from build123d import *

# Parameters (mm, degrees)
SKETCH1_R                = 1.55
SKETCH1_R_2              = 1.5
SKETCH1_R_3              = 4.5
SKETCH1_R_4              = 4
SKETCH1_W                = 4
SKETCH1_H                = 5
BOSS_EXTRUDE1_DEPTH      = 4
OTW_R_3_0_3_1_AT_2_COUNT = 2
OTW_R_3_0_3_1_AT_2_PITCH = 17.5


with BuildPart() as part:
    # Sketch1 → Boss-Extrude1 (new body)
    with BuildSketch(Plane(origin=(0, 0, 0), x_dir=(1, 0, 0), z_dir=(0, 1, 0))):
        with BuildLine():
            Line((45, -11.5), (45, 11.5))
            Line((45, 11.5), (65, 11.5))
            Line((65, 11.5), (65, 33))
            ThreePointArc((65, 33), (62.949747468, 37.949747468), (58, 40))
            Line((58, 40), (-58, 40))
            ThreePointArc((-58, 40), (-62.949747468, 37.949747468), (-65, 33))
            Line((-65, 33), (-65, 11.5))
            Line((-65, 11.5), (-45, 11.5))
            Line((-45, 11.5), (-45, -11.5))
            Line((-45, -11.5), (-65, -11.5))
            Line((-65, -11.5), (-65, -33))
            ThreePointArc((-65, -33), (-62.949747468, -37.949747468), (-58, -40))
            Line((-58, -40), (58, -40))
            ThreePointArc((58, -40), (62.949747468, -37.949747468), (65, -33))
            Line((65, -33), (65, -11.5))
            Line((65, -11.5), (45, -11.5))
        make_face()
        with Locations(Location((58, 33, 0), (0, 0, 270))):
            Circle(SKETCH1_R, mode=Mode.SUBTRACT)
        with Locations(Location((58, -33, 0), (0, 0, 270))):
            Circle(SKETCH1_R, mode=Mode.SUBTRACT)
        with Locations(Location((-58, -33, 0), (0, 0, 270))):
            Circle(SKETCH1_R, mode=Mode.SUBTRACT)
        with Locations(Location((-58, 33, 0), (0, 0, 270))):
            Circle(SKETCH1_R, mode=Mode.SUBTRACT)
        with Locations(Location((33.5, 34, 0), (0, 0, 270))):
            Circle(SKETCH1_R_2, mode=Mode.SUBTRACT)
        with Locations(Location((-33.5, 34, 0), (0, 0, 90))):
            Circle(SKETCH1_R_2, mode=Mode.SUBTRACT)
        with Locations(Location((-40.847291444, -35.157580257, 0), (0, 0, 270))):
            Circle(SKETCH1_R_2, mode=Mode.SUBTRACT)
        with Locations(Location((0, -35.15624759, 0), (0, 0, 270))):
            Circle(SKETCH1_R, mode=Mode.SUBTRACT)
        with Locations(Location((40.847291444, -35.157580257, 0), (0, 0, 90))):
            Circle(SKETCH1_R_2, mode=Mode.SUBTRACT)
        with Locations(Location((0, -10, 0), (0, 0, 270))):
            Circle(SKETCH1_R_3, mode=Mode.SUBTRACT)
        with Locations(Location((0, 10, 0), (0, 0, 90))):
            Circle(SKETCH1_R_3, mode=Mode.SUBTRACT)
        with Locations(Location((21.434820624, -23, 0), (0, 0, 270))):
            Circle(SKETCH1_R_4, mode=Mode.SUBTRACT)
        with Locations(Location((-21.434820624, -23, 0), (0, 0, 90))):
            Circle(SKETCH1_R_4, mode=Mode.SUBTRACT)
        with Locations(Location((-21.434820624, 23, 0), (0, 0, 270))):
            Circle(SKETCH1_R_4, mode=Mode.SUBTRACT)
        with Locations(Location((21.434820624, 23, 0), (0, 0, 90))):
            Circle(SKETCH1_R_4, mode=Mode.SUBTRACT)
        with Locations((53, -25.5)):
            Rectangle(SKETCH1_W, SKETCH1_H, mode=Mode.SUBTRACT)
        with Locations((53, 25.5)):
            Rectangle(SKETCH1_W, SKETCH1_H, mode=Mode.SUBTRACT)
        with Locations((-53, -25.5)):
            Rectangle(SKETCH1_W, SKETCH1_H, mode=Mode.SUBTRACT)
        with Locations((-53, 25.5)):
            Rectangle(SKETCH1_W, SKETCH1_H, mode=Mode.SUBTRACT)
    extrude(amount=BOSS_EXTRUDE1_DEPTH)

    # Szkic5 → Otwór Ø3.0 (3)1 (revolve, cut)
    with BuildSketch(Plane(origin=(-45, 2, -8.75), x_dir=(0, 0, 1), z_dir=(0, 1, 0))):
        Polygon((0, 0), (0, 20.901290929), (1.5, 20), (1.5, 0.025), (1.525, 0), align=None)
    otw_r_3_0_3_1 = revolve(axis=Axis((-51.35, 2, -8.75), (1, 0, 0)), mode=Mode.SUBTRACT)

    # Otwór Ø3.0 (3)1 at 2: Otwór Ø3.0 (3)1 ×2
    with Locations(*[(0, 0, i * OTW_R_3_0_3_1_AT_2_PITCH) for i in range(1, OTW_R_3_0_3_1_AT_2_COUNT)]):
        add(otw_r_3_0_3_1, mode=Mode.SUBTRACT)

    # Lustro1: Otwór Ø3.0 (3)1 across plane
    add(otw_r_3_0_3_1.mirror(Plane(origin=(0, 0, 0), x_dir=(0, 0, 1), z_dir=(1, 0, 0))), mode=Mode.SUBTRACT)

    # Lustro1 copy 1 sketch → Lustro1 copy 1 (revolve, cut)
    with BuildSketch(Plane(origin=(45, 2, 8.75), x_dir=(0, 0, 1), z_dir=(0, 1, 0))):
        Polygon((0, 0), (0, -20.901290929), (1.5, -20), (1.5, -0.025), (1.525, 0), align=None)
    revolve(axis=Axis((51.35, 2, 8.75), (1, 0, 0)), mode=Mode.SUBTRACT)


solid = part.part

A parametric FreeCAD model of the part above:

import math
import FreeCAD as App
import Part
import Sketcher
from FreeCAD import Vector
Q = App.Units.Quantity


def add_polygon(sketch, points):
    """Adds a closed chain of lines whose ends are joined by coincident constraints."""
    first, n = sketch.GeometryCount, len(points)
    for a, b in zip(points, points[1:] + points[:1]):
        sketch.addGeometry(Part.LineSegment(App.Vector(*a, 0), App.Vector(*b, 0)), False)
    for i in range(n):
        sketch.addConstraint(Sketcher.Constraint("Coincident", first + i, 2, first + (i + 1) % n, 1))

doc = App.newDocument("Part")
body = doc.addObject("PartDesign::Body", "Body")

# Sketch on XZ plane
sketch1 = doc.addObject("Sketcher::SketchObject", "Sketch")
body.addObject(sketch1)
sketch1.AttachmentSupport = (doc.XZ_Plane, [""])
sketch1.MapMode = "FlatFace"
sketch1.addGeometry(Part.LineSegment(Vector(45, 11.5, 0), Vector(45, -11.5, 0)), False)  # 0
sketch1.addGeometry(Part.LineSegment(Vector(45, -11.5, 0), Vector(65, -11.5, 0)), False)  # 1
sketch1.addGeometry(Part.LineSegment(Vector(65, -11.5, 0), Vector(65, -33, 0)), False)  # 2
sketch1.addGeometry(Part.ArcOfCircle(Part.Circle(Vector(58, -33, 0), Vector(0, 0, 1), 7), math.radians(-90), math.radians(0)), False)  # 3
sketch1.addGeometry(Part.LineSegment(Vector(58, -40, 0), Vector(-58, -40, 0)), False)  # 4
sketch1.addGeometry(Part.ArcOfCircle(Part.Circle(Vector(-58, -33, 0), Vector(0, 0, 1), 7), math.radians(-180), math.radians(-90)), False)  # 5
sketch1.addGeometry(Part.LineSegment(Vector(-65, -33, 0), Vector(-65, -11.5, 0)), False)  # 6
sketch1.addGeometry(Part.LineSegment(Vector(-65, -11.5, 0), Vector(-45, -11.5, 0)), False)  # 7
sketch1.addGeometry(Part.LineSegment(Vector(-45, -11.5, 0), Vector(-45, 11.5, 0)), False)  # 8
sketch1.addGeometry(Part.LineSegment(Vector(-45, 11.5, 0), Vector(-65, 11.5, 0)), False)  # 9
sketch1.addGeometry(Part.LineSegment(Vector(-65, 11.5, 0), Vector(-65, 33, 0)), False)  # 10
sketch1.addGeometry(Part.ArcOfCircle(Part.Circle(Vector(-58, 33, 0), Vector(0, 0, 1), 7), math.radians(90), math.radians(180)), False)  # 11
sketch1.addGeometry(Part.LineSegment(Vector(-58, 40, 0), Vector(58, 40, 0)), False)  # 12
sketch1.addGeometry(Part.ArcOfCircle(Part.Circle(Vector(58, 33, 0), Vector(0, 0, 1), 7), math.radians(0), math.radians(90)), False)  # 13
sketch1.addGeometry(Part.LineSegment(Vector(65, 33, 0), Vector(65, 11.5, 0)), False)  # 14
sketch1.addGeometry(Part.LineSegment(Vector(65, 11.5, 0), Vector(45, 11.5, 0)), False)  # 15
sketch1.addGeometry(Part.Circle(Vector(-58, 33, 0), Vector(0, 0, 1), 1.6), False)  # 16
sketch1.addGeometry(Part.Circle(Vector(-40.8, 35.2, 0), Vector(0, 0, 1), 1.5), False)  # 17
add_polygon(sketch1, [(-51, 28), (-55, 28), (-55, 23), (-51, 23)])  # lines 18-21
sketch1.addGeometry(Part.Circle(Vector(0, 35.2, 0), Vector(0, 0, 1), 1.6), False)  # 22
sketch1.addGeometry(Part.Circle(Vector(-21.4, 23, 0), Vector(0, 0, 1), 4), False)  # 23
sketch1.addGeometry(Part.Circle(Vector(0, 10, 0), Vector(0, 0, 1), 4.5), False)  # 24
sketch1.addGeometry(Part.Circle(Vector(21.4, 23, 0), Vector(0, 0, 1), 4), False)  # 25
sketch1.addGeometry(Part.Circle(Vector(40.8, 35.2, 0), Vector(0, 0, 1), 1.5), False)  # 26
sketch1.addGeometry(Part.Circle(Vector(58, 33, 0), Vector(0, 0, 1), 1.6), False)  # 27
add_polygon(sketch1, [(55, 28), (51, 28), (51, 23), (55, 23)])  # lines 28-31
sketch1.addGeometry(Part.Circle(Vector(0, -10, 0), Vector(0, 0, 1), 4.5), False)  # 32
add_polygon(sketch1, [(-51, -23), (-55, -23), (-55, -28), (-51, -28)])  # lines 33-36
sketch1.addGeometry(Part.Circle(Vector(-58, -33, 0), Vector(0, 0, 1), 1.6), False)  # 37
sketch1.addGeometry(Part.Circle(Vector(-33.5, -34, 0), Vector(0, 0, 1), 1.5), False)  # 38
sketch1.addGeometry(Part.Circle(Vector(-21.4, -23, 0), Vector(0, 0, 1), 4), False)  # 39
sketch1.addGeometry(Part.Circle(Vector(21.4, -23, 0), Vector(0, 0, 1), 4), False)  # 40
add_polygon(sketch1, [(55, -23), (51, -23), (51, -28), (55, -28)])  # lines 41-44
sketch1.addGeometry(Part.Circle(Vector(33.5, -34, 0), Vector(0, 0, 1), 1.5), False)  # 45
sketch1.addGeometry(Part.Circle(Vector(58, -33, 0), Vector(0, 0, 1), 1.6), False)  # 46
sketch1.addConstraint([
    Sketcher.Constraint("Coincident", 0, 2, 1, 1),
    Sketcher.Constraint("Coincident", 1, 2, 2, 1),
    Sketcher.Constraint("Tangent", 2, 2, 3, 2),
    Sketcher.Constraint("Tangent", 3, 1, 4, 1),
    Sketcher.Constraint("Tangent", 4, 2, 5, 2),
    Sketcher.Constraint("Tangent", 5, 1, 6, 1),
    Sketcher.Constraint("Coincident", 6, 2, 7, 1),
    Sketcher.Constraint("Coincident", 7, 2, 8, 1),
    Sketcher.Constraint("Coincident", 8, 2, 9, 1),
    Sketcher.Constraint("Coincident", 9, 2, 10, 1),
    Sketcher.Constraint("Tangent", 10, 2, 11, 2),
    Sketcher.Constraint("Tangent", 11, 1, 12, 1),
    Sketcher.Constraint("Tangent", 12, 2, 13, 2),
    Sketcher.Constraint("Tangent", 13, 1, 14, 1),
    Sketcher.Constraint("Coincident", 14, 2, 15, 1),
    Sketcher.Constraint("Coincident", 15, 2, 0, 1),
    Sketcher.Constraint("Vertical", 0),
    Sketcher.Constraint("Horizontal", 1),
    Sketcher.Constraint("Vertical", 2),
    Sketcher.Constraint("Horizontal", 4),
    Sketcher.Constraint("Vertical", 6),
    Sketcher.Constraint("Horizontal", 7),
    Sketcher.Constraint("Vertical", 8),
    Sketcher.Constraint("Horizontal", 9),
    Sketcher.Constraint("Vertical", 10),
    Sketcher.Constraint("Horizontal", 12),
    Sketcher.Constraint("Vertical", 14),
    Sketcher.Constraint("Horizontal", 15),
    Sketcher.Constraint("Horizontal", 18),
    Sketcher.Constraint("Vertical", 19),
    Sketcher.Constraint("Horizontal", 20),
    Sketcher.Constraint("Vertical", 21),
    Sketcher.Constraint("Horizontal", 28),
    Sketcher.Constraint("Vertical", 29),
    Sketcher.Constraint("Horizontal", 30),
    Sketcher.Constraint("Vertical", 31),
    Sketcher.Constraint("Horizontal", 33),
    Sketcher.Constraint("Vertical", 34),
    Sketcher.Constraint("Horizontal", 35),
    Sketcher.Constraint("Vertical", 36),
    Sketcher.Constraint("Horizontal", 41),
    Sketcher.Constraint("Vertical", 42),
    Sketcher.Constraint("Horizontal", 43),
    Sketcher.Constraint("Vertical", 44),
    Sketcher.Constraint("Coincident", 16, 3, 11, 3),
    Sketcher.Constraint("Coincident", 27, 3, 13, 3),
    Sketcher.Constraint("Coincident", 37, 3, 5, 3),
    Sketcher.Constraint("Coincident", 46, 3, 3, 3),
    Sketcher.Constraint("Equal", 3, 5),
    Sketcher.Constraint("Equal", 5, 11),
    Sketcher.Constraint("Equal", 11, 13),
    Sketcher.Constraint("Equal", 16, 22),
    Sketcher.Constraint("Equal", 23, 25),
    Sketcher.Constraint("Equal", 17, 26),
    Sketcher.Constraint("Equal", 22, 27),
    Sketcher.Constraint("Equal", 24, 32),
    Sketcher.Constraint("Equal", 27, 37),
    Sketcher.Constraint("Equal", 26, 38),
    Sketcher.Constraint("Equal", 25, 39),
    Sketcher.Constraint("Equal", 39, 40),
    Sketcher.Constraint("Equal", 38, 45),
    Sketcher.Constraint("Equal", 37, 46),
    Sketcher.Constraint("Symmetric", 3, 3, 11, 3, -1, 1),
    Sketcher.Constraint("Symmetric", 24, 3, 32, 3, -1, 1),
    Sketcher.Constraint("Symmetric", 25, 3, 39, 3, -1, 1),
    Sketcher.Constraint("Symmetric", 23, 3, 40, 3, -1, 1),
    Sketcher.Constraint("Symmetric", 0, 2, 8, 2, -1, 1),
    Sketcher.Constraint("Symmetric", 6, 2, 14, 2, -1, 1),
    Sketcher.Constraint("Symmetric", 30, 2, 33, 2, -1, 1),
    Sketcher.Constraint("Symmetric", 28, 2, 35, 2, -1, 1),
    Sketcher.Constraint("Symmetric", 20, 2, 41, 2, -1, 1),
    Sketcher.Constraint("Symmetric", 18, 2, 43, 2, -1, 1),
    Sketcher.Constraint("Symmetric", 23, 3, 25, 3, -2),
    Sketcher.Constraint("Symmetric", 17, 3, 26, 3, -2),
    Sketcher.Constraint("Symmetric", 38, 3, 45, 3, -2),
    Sketcher.Constraint("Symmetric", 1, 2, 6, 2, -2),
    Sketcher.Constraint("Symmetric", 21, 2, 28, 2, -2),
    Sketcher.Constraint("Symmetric", 19, 2, 30, 2, -2),
    Sketcher.Constraint("PointOnObject", 22, 3, -2),
    Sketcher.Constraint("PointOnObject", 24, 3, -2),
    Sketcher.Constraint("Horizontal", 25, 3, 19, 2),
    Sketcher.Constraint("Diameter", 17, 3.0),
    Sketcher.Constraint("Diameter", 23, 8.0),
    Sketcher.Constraint("Diameter", 24, 9.0),
    Sketcher.Constraint("Radius", 3, 7.0),
    Sketcher.Constraint("Diameter", 16, 3.1),
    Sketcher.Constraint("DistanceX", 1, 1, 1, 2, 20.0),
    Sketcher.Constraint("DistanceX", 4, 2, 4, 1, 116.0),
    Sketcher.Constraint("DistanceX", 18, 2, 18, 1, 4.0),
    Sketcher.Constraint("DistanceY", 0, 2, 0, 1, 23.0),
    Sketcher.Constraint("DistanceY", 19, 2, 19, 1, 5.0),
    Sketcher.Constraint("DistanceY", 2, 2, 2, 1, 21.5),
    Sketcher.Constraint("DistanceY", -1, 1, 23, 3, 23.0),
    Sketcher.Constraint("DistanceY", -1, 1, 24, 3, 10.0),
    Sketcher.Constraint("DistanceY", 38, 3, -1, 1, 34.0),
    Sketcher.Constraint("DistanceX", 18, 2, -1, 1, 55.0),
    Sketcher.Constraint("DistanceX", 38, 3, -1, 1, 33.5),
    Sketcher.Constraint("DistanceX", 17, 3, -1, 1, 40.847291),
    Sketcher.Constraint("DistanceY", -1, 1, 17, 3, 35.15758),
    Sketcher.Constraint("DistanceX", 23, 3, -1, 1, 21.434821),
    Sketcher.Constraint("DistanceY", -1, 1, 22, 3, 35.156248),
])
pad1 = doc.addObject("PartDesign::Pad", "Pad")
body.addObject(pad1)
pad1.Profile = sketch1
pad1.Length = 4
pad1.Reversed = True

# Sketch on XZ plane
sketch2 = doc.addObject("Sketcher::SketchObject", "Sketch001")
body.addObject(sketch2)
sketch2.AttachmentSupport = (doc.XZ_Plane, [""])
sketch2.MapMode = "FlatFace"
sketch2.AttachmentOffset = App.Placement(Vector(0, 0, -2), App.Rotation())
add_polygon(sketch2, [(-24.099, -8.75), (-45, -8.75), (-45, -7.225), (-44.975, -7.25), (-25, -7.25)])  # lines 0-4
sketch2.addGeometry(Part.LineSegment(Vector(-45, -8.75, 0), Vector(-24.099, -8.75, 0)), True)  # axis
sketch2.addConstraint([
    Sketcher.Constraint("Horizontal", 0),
    Sketcher.Constraint("Vertical", 1),
    Sketcher.Constraint("Horizontal", 3),
    Sketcher.Constraint("Horizontal", 5),
    Sketcher.Constraint("Coincident", 5, 1, 0, 2),
    Sketcher.Constraint("Equal", 0, 5),
    Sketcher.Constraint("Angle", 2, Q("-45 deg")),
    Sketcher.Constraint("Angle", 4, Q("-59 deg")),
    Sketcher.Constraint("DistanceX", 0, 2, -1, 1, 45.0),
    Sketcher.Constraint("DistanceX", 3, 2, -1, 1, 25.0),
    Sketcher.Constraint("DistanceY", 0, 2, 2, 2, 1.5),
    Sketcher.Constraint("DistanceX", 3, 1, 3, 2, 19.975),
    Sketcher.Constraint("DistanceY", 0, 2, -1, 1, 8.75),
])
groove = doc.addObject("PartDesign::Groove", "Groove")
body.addObject(groove)
groove.Profile = sketch2
groove.ReferenceAxis = (sketch2, ["Axis0"])
groove.Angle = 360
doc.recompute()

linearpattern = doc.addObject("PartDesign::LinearPattern", "LinearPattern")
body.addObject(linearpattern)
linearpattern.Originals = [groove]
linearpattern.Direction = (doc.Z_Axis, [""])
linearpattern.Mode = "offset"
linearpattern.Offset = 17.5
linearpattern.Occurrences = 2
body.Tip = linearpattern
doc.recompute()

mirrored = doc.addObject("PartDesign::Mirrored", "Mirrored")
body.addObject(mirrored)
mirrored.Originals = [groove]
mirrored.MirrorPlane = (doc.YZ_Plane, [""])
body.Tip = mirrored

# Sketch on XZ plane
sketch3 = doc.addObject("Sketcher::SketchObject", "Sketch002")
body.addObject(sketch3)
sketch3.AttachmentSupport = (doc.XZ_Plane, [""])
sketch3.MapMode = "FlatFace"
sketch3.AttachmentOffset = App.Placement(Vector(0, 0, -2), App.Rotation())
add_polygon(sketch3, [(45, 8.75), (24.099, 8.75), (25, 10.25), (44.975, 10.25), (45, 10.275)])  # lines 0-4
sketch3.addGeometry(Part.LineSegment(Vector(24.099, 8.75, 0), Vector(45, 8.75, 0)), True)  # axis
sketch3.addConstraint([
    Sketcher.Constraint("Horizontal", 0),
    Sketcher.Constraint("Horizontal", 2),
    Sketcher.Constraint("Vertical", 4),
    Sketcher.Constraint("Horizontal", 5),
    Sketcher.Constraint("Coincident", 5, 1, 0, 2),
    Sketcher.Constraint("Vertical", 3, 2, 5, 2),
    Sketcher.Constraint("Angle", 1, Q("59 deg")),
    Sketcher.Constraint("Angle", 3, Q("45 deg")),
    Sketcher.Constraint("DistanceX", -1, 1, 1, 2, 25.0),
    Sketcher.Constraint("DistanceX", -1, 1, 3, 2, 45.0),
    Sketcher.Constraint("DistanceY", 0, 2, 1, 2, 1.5),
    Sketcher.Constraint("DistanceX", 2, 1, 2, 2, 19.975),
    Sketcher.Constraint("DistanceY", -1, 1, 0, 2, 8.75),
])
groove2 = doc.addObject("PartDesign::Groove", "Groove001")
body.addObject(groove2)
groove2.Profile = sketch3
groove2.ReferenceAxis = (sketch3, ["Axis0"])
groove2.Angle = 360

doc.recompute()
